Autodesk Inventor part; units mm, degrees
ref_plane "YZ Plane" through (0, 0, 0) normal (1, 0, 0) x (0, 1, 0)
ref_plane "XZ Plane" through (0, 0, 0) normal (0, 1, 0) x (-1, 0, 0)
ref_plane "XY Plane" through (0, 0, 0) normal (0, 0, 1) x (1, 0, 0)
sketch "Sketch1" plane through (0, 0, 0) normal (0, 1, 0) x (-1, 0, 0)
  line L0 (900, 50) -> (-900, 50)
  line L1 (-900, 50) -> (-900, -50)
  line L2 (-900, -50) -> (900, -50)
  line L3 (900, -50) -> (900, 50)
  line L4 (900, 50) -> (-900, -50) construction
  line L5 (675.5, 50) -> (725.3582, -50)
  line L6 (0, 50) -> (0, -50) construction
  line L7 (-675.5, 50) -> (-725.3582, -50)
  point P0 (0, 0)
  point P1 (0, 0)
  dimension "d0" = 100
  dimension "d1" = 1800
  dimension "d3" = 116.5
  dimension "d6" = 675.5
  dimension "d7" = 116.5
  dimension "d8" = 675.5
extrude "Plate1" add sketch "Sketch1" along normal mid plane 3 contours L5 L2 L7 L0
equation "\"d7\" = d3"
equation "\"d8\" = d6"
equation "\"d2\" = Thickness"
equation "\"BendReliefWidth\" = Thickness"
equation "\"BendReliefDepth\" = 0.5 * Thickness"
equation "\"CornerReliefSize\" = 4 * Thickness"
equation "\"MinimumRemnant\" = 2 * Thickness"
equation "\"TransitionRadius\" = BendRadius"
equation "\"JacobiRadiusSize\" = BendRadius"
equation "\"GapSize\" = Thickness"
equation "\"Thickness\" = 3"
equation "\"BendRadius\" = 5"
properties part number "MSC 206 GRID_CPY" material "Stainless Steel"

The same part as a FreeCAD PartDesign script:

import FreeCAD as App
import Part
import Sketcher
from FreeCAD import Vector
Q = App.Units.Quantity

doc = App.newDocument("Part")
body = doc.addObject("PartDesign::Body", "Body")

# Sketch on XZ plane
sketch1 = body.newObject("Sketcher::SketchObject", "Sketch")
sketch1.AttachmentSupport = (doc.getObject("XZ_Plane"), [""])
sketch1.MapMode = "FlatFace"
sketch1.addGeometry([
    Part.LineSegment(Vector(-725, -50, 0), Vector(-676, 50, 0)),
    Part.LineSegment(Vector(-676, 50, 0), Vector(676, 50, 0)),
    Part.LineSegment(Vector(676, 50, 0), Vector(725, -50, 0)),
    Part.LineSegment(Vector(725, -50, 0), Vector(-725, -50, 0)),
], False)
sketch1.addConstraint([
    Sketcher.Constraint("Coincident", 0, 2, 1, 1),
    Sketcher.Constraint("Coincident", 1, 2, 2, 1),
    Sketcher.Constraint("Coincident", 2, 2, 3, 1),
    Sketcher.Constraint("Coincident", 3, 2, 0, 1),
    Sketcher.Constraint("Horizontal", 1),
    Sketcher.Constraint("Horizontal", 3),
    Sketcher.Constraint("Equal", 0, 2),
    Sketcher.Constraint("DistanceY", 2, 2, 1, 2, 100.0),
    Sketcher.Constraint("DistanceX", 0, 2, -1, 1, 675.5),
    Sketcher.Constraint("DistanceX", -1, 1, 1, 2, 675.5),
    Sketcher.Constraint("DistanceY", -1, 1, 0, 2, 50.0),
    Sketcher.Constraint("Angle", 0, Q("63.5 deg")),
])
pad1 = body.newObject("PartDesign::Pad", "Pad")
pad1.Profile = sketch1
pad1.Length = 3
pad1.Midplane = True

doc.recompute()
